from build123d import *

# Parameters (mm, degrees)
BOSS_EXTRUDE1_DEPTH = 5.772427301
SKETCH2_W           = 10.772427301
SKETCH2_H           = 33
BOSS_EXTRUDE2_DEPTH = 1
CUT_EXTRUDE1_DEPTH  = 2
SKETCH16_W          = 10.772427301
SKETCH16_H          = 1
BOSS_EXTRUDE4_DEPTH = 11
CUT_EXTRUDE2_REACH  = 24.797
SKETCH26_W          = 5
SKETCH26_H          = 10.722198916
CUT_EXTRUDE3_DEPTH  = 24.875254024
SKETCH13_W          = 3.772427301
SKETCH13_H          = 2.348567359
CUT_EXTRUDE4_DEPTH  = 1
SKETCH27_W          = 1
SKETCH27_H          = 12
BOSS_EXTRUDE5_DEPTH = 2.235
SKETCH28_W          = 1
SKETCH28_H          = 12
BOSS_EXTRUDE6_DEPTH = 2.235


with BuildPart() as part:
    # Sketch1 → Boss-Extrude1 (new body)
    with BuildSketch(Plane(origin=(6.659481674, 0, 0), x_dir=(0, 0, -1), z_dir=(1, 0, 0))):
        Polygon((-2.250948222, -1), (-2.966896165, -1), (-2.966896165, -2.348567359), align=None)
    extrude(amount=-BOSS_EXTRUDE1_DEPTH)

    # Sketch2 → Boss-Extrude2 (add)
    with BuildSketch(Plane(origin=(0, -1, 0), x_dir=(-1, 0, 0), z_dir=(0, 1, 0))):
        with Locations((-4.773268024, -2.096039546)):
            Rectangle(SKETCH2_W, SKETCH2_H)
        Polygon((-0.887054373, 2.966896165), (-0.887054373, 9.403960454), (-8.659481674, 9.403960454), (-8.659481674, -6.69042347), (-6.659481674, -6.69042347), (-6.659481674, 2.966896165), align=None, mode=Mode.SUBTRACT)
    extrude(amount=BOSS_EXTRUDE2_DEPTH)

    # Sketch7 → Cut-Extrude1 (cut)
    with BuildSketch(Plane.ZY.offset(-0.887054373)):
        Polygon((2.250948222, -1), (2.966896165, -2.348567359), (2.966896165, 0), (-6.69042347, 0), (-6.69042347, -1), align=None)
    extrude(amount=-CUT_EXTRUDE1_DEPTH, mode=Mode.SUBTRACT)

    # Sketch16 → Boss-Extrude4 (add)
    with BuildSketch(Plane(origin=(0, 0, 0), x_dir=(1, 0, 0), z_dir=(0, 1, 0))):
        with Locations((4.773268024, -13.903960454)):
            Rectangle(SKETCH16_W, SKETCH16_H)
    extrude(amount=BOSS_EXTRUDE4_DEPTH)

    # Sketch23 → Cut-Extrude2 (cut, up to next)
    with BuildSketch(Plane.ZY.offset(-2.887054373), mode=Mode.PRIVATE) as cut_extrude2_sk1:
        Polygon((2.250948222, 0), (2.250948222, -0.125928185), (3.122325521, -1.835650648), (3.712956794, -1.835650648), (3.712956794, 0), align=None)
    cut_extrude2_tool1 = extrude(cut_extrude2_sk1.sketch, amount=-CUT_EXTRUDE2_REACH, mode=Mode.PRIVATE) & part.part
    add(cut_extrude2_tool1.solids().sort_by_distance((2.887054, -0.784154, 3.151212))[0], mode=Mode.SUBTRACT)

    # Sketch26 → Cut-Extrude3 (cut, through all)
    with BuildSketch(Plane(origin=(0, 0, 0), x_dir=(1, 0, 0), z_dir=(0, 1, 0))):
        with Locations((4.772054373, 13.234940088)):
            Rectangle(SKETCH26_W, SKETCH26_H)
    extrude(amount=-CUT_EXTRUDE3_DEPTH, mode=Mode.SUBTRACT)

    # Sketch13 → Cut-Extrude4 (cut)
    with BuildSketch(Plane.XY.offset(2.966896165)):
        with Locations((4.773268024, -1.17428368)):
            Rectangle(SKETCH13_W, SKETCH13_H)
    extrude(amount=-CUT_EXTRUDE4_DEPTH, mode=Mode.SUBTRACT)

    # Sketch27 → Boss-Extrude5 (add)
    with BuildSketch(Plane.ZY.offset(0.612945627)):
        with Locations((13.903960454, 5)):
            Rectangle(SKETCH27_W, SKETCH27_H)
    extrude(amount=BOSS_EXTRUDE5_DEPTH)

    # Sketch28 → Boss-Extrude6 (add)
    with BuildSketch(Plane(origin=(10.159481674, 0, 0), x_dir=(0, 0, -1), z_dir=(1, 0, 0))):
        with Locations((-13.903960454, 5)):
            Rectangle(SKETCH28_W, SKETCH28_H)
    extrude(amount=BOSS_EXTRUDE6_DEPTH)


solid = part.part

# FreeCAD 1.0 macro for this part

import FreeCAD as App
import Part
import Sketcher

V = App.Vector
Q = App.Units.Quantity

doc = App.newDocument("Part")
body = doc.addObject("PartDesign::Body", "Body")

sketch1 = body.newObject("Sketcher::SketchObject", "Sketch")
sketch1.AttachmentSupport = (doc.getObject("YZ_Plane"), [""])
sketch1.MapMode = "FlatFace"
sketch1.AttachmentOffset = App.Placement(V(0, 0, 6.659482), App.Rotation())
sketch1.addGeometry([
    Part.LineSegment(V(-1, 2.250948, 0), V(-1, 2.966896, 0)),
    Part.LineSegment(V(-1, 2.966896, 0), V(-2.348567, 2.966896, 0)),
    Part.LineSegment(V(-2.348567, 2.966896, 0), V(-1, 2.250948, 0)),
], False)
sketch1.addConstraint([
    Sketcher.Constraint("Coincident", 0, 2, 1, 1),
    Sketcher.Constraint("Coincident", 1, 2, 2, 1),
    Sketcher.Constraint("Coincident", 2, 2, 0, 1),
    Sketcher.Constraint("Vertical", 0),
    Sketcher.Constraint("Horizontal", 1),
    Sketcher.Constraint("DistanceX", 0, 2, -1, 1, Q("1 mm")),
    Sketcher.Constraint("Distance", 2, Q("1.526832 mm")),
    Sketcher.Constraint("DistanceX", 1, 2, 1, 1, Q("1.348567 mm")),
    Sketcher.Constraint("DistanceY", -1, 1, 2, 2, Q("2.250948 mm")),
])
pad1 = body.newObject("PartDesign::Pad", "Pad")
pad1.Profile = sketch1
pad1.Length = 5.772427
pad1.Reversed = True

sketch2 = body.newObject("Sketcher::SketchObject", "Sketch001")
sketch2.AttachmentSupport = (doc.getObject("XZ_Plane"), [""])
sketch2.MapMode = "FlatFace"
sketch2.AttachmentOffset = App.Placement(V(0, 0, 1), App.Rotation())
sketch2.addGeometry([
    Part.LineSegment(V(10.159482, 14.40396, 0), V(10.159482, -18.59604, 0)),
    Part.LineSegment(V(10.159482, -18.59604, 0), V(-0.612946, -18.59604, 0)),
    Part.LineSegment(V(-0.612946, -18.59604, 0), V(-0.612946, 14.40396, 0)),
    Part.LineSegment(V(-0.612946, 14.40396, 0), V(10.159482, 14.40396, 0)),
    Part.LineSegment(V(0.887054, 9.40396, 0), V(0.887054, 2.966896, 0)),
    Part.LineSegment(V(0.887054, 2.966896, 0), V(6.659482, 2.966896, 0)),
    Part.LineSegment(V(6.659482, 2.966896, 0), V(6.659482, -6.690423, 0)),
    Part.LineSegment(V(6.659482, -6.690423, 0), V(8.659482, -6.690423, 0)),
    Part.LineSegment(V(8.659482, -6.690423, 0), V(8.659482, 9.40396, 0)),
    Part.LineSegment(V(8.659482, 9.40396, 0), V(0.887054, 9.40396, 0)),
], False)
sketch2.addConstraint([
    Sketcher.Constraint("Coincident", 0, 2, 1, 1),
    Sketcher.Constraint("Coincident", 1, 2, 2, 1),
    Sketcher.Constraint("Coincident", 2, 2, 3, 1),
    Sketcher.Constraint("Coincident", 3, 2, 0, 1),
    Sketcher.Constraint("Coincident", 4, 2, 5, 1),
    Sketcher.Constraint("Coincident", 5, 2, 6, 1),
    Sketcher.Constraint("Coincident", 6, 2, 7, 1),
    Sketcher.Constraint("Coincident", 7, 2, 8, 1),
    Sketcher.Constraint("Coincident", 8, 2, 9, 1),
    Sketcher.Constraint("Coincident", 9, 2, 4, 1),
    Sketcher.Constraint("Vertical", 0),
    Sketcher.Constraint("Horizontal", 1),
    Sketcher.Constraint("Vertical", 2),
    Sketcher.Constraint("Horizontal", 3),
    Sketcher.Constraint("Vertical", 4),
    Sketcher.Constraint("Horizontal", 5),
    Sketcher.Constraint("Vertical", 6),
    Sketcher.Constraint("Horizontal", 7),
    Sketcher.Constraint("Vertical", 8),
    Sketcher.Constraint("Horizontal", 9),
    Sketcher.Constraint("DistanceX", 7, 1, 7, 2, Q("2 mm")),
    Sketcher.Constraint("DistanceY", 0, 2, 0, 1, Q("33 mm")),
    Sketcher.Constraint("DistanceY", 8, 2, 3, 2, Q("5 mm")),
    Sketcher.Constraint("DistanceX", 2, 2, 4, 2, Q("1.5 mm")),
    Sketcher.Constraint("DistanceX", 5, 2, 3, 2, Q("3.5 mm")),
    Sketcher.Constraint("DistanceY", 6, 2, 6, 1, Q("9.65732 mm")),
    Sketcher.Constraint("DistanceX", 1, 2, 1, 1, Q("10.772427 mm")),
    Sketcher.Constraint("DistanceY", 4, 2, 4, 1, Q("6.437064 mm")),
    Sketcher.Constraint("DistanceX", -1, 1, 0, 2, Q("10.159482 mm")),
    Sketcher.Constraint("DistanceY", 0, 2, -1, 1, Q("18.59604 mm")),
])
pad2 = body.newObject("PartDesign::Pad", "Pad001")
pad2.Profile = sketch2
pad2.Length = 1
pad2.Reversed = True

sketch3 = body.newObject("Sketcher::SketchObject", "Sketch002")
sketch3.AttachmentSupport = (doc.getObject("YZ_Plane"), [""])
sketch3.MapMode = "FlatFace"
sketch3.AttachmentOffset = App.Placement(V(0, 0, 0.887054), App.Rotation())
sketch3.addGeometry([
    Part.LineSegment(V(-1, 2.250948, 0), V(-2.348567, 2.966896, 0)),
    Part.LineSegment(V(-2.348567, 2.966896, 0), V(0, 2.966896, 0)),
    Part.LineSegment(V(0, 2.966896, 0), V(0, -6.690423, 0)),
    Part.LineSegment(V(0, -6.690423, 0), V(-1, -6.690423, 0)),
    Part.LineSegment(V(-1, -6.690423, 0), V(-1, 2.250948, 0)),
], False)
sketch3.addConstraint([
    Sketcher.Constraint("Coincident", 0, 2, 1, 1),
    Sketcher.Constraint("Coincident", 1, 2, 2, 1),
    Sketcher.Constraint("Coincident", 2, 2, 3, 1),
    Sketcher.Constraint("Coincident", 3, 2, 4, 1),
    Sketcher.Constraint("Coincident", 4, 2, 0, 1),
    Sketcher.Constraint("Horizontal", 1),
    Sketcher.Constraint("Vertical", 2),
    Sketcher.Constraint("Horizontal", 3),
    Sketcher.Constraint("Vertical", 4),
    Sketcher.Constraint("PointOnObject", 1, 2, -2),
    Sketcher.Constraint("DistanceX", 3, 2, 3, 1, Q("1 mm")),
    Sketcher.Constraint("DistanceY", 2, 2, 2, 1, Q("9.65732 mm")),
    Sketcher.Constraint("DistanceY", 4, 1, 4, 2, Q("8.941372 mm")),
    Sketcher.Constraint("Distance", 0, Q("1.526832 mm")),
    Sketcher.Constraint("DistanceY", -1, 1, 4, 2, Q("2.250948 mm")),
])
pocket1 = body.newObject("PartDesign::Pocket", "Pocket")
pocket1.Profile = sketch3
pocket1.Length = 2
pocket1.Reversed = True

sketch4 = body.newObject("Sketcher::SketchObject", "Sketch003")
sketch4.AttachmentSupport = (doc.getObject("XZ_Plane"), [""])
sketch4.MapMode = "FlatFace"
sketch4.addGeometry([
    Part.LineSegment(V(-0.612946, 13.40396, 0), V(-0.612946, 14.40396, 0)),
    Part.LineSegment(V(-0.612946, 14.40396, 0), V(10.159482, 14.40396, 0)),
    Part.LineSegment(V(10.159482, 14.40396, 0), V(10.159482, 13.40396, 0)),
    Part.LineSegment(V(10.159482, 13.40396, 0), V(-0.612946, 13.40396, 0)),
], False)
sketch4.addConstraint([
    Sketcher.Constraint("Coincident", 0, 2, 1, 1),
    Sketcher.Constraint("Coincident", 1, 2, 2, 1),
    Sketcher.Constraint("Coincident", 2, 2, 3, 1),
    Sketcher.Constraint("Coincident", 3, 2, 0, 1),
    Sketcher.Constraint("Vertical", 0),
    Sketcher.Constraint("Horizontal", 1),
    Sketcher.Constraint("Vertical", 2),
    Sketcher.Constraint("Horizontal", 3),
    Sketcher.Constraint("DistanceY", 0, 1, 0, 2, Q("1 mm")),
    Sketcher.Constraint("DistanceX", 1, 1, 1, 2, Q("10.772427 mm")),
    Sketcher.Constraint("DistanceY", -1, 1, 0, 2, Q("14.40396 mm")),
    Sketcher.Constraint("DistanceX", -1, 1, 1, 2, Q("10.159482 mm")),
])
pad3 = body.newObject("PartDesign::Pad", "Pad002")
pad3.Profile = sketch4
pad3.Length = 11
pad3.Reversed = True

sketch5 = body.newObject("Sketcher::SketchObject", "Sketch004")
sketch5.AttachmentSupport = (doc.getObject("YZ_Plane"), [""])
sketch5.MapMode = "FlatFace"
sketch5.AttachmentOffset = App.Placement(V(0, 0, 2.887054), App.Rotation())
sketch5.addGeometry([
    Part.LineSegment(V(0, 2.250948, 0), V(-0.125928, 2.250948, 0)),
    Part.LineSegment(V(-0.125928, 2.250948, 0), V(-1.835651, 3.122326, 0)),
    Part.LineSegment(V(-1.835651, 3.122326, 0), V(-1.835651, 3.712957, 0)),
    Part.LineSegment(V(-1.835651, 3.712957, 0), V(0, 3.712957, 0)),
    Part.LineSegment(V(0, 3.712957, 0), V(0, 2.250948, 0)),
], False)
sketch5.addConstraint([
    Sketcher.Constraint("Coincident", 0, 2, 1, 1),
    Sketcher.Constraint("Coincident", 1, 2, 2, 1),
    Sketcher.Constraint("Coincident", 2, 2, 3, 1),
    Sketcher.Constraint("Coincident", 3, 2, 4, 1),
    Sketcher.Constraint("Coincident", 4, 2, 0, 1),
    Sketcher.Constraint("Horizontal", 0),
    Sketcher.Constraint("Vertical", 2),
    Sketcher.Constraint("Horizontal", 3),
    Sketcher.Constraint("Vertical", 4),
    Sketcher.Constraint("PointOnObject", 3, 2, -2),
    Sketcher.Constraint("DistanceX", 0, 2, 0, 1, Q("0.125928 mm")),
    Sketcher.Constraint("DistanceX", 3, 1, 3, 2, Q("1.835651 mm")),
    Sketcher.Constraint("DistanceY", 2, 1, 2, 2, Q("0.590631 mm")),
    Sketcher.Constraint("DistanceY", 4, 2, 4, 1, Q("1.462009 mm")),
    Sketcher.Constraint("DistanceY", -1, 1, 0, 2, Q("2.250948 mm")),
])
pocket2 = body.newObject("PartDesign::Pocket", "Pocket001")
pocket2.Profile = sketch5
pocket2.Type = "UpToFirst"
pocket2.Reversed = True

sketch6 = body.newObject("Sketcher::SketchObject", "Sketch005")
sketch6.AttachmentSupport = (doc.getObject("XZ_Plane"), [""])
sketch6.MapMode = "FlatFace"
sketch6.addGeometry([
    Part.LineSegment(V(2.272054, -18.59604, 0), V(2.272054, -7.873841, 0)),
    Part.LineSegment(V(2.272054, -7.873841, 0), V(7.272054, -7.873841, 0)),
    Part.LineSegment(V(7.272054, -7.873841, 0), V(7.272054, -18.59604, 0)),
    Part.LineSegment(V(7.272054, -18.59604, 0), V(2.272054, -18.59604, 0)),
], False)
sketch6.addConstraint([
    Sketcher.Constraint("Coincident", 0, 2, 1, 1),
    Sketcher.Constraint("Coincident", 1, 2, 2, 1),
    Sketcher.Constraint("Coincident", 2, 2, 3, 1),
    Sketcher.Constraint("Coincident", 3, 2, 0, 1),
    Sketcher.Constraint("Vertical", 0),
    Sketcher.Constraint("Horizontal", 1),
    Sketcher.Constraint("Vertical", 2),
    Sketcher.Constraint("Horizontal", 3),
    Sketcher.Constraint("DistanceX", 1, 1, 1, 2, Q("5 mm")),
    Sketcher.Constraint("DistanceY", 0, 1, 0, 2, Q("10.722199 mm")),
    Sketcher.Constraint("DistanceY", 0, 2, -1, 1, Q("7.873841 mm")),
    Sketcher.Constraint("DistanceX", -1, 1, 0, 2, Q("2.272054 mm")),
])
pocket3 = body.newObject("PartDesign::Pocket", "Pocket002")
pocket3.Profile = sketch6
pocket3.Type = "ThroughAll"
pocket3.Reversed = True

sketch7 = body.newObject("Sketcher::SketchObject", "Sketch006")
sketch7.AttachmentSupport = (doc.getObject("XY_Plane"), [""])
sketch7.MapMode = "FlatFace"
sketch7.AttachmentOffset = App.Placement(V(0, 0, 2.966896), App.Rotation())
sketch7.addGeometry([
    Part.LineSegment(V(2.887054, 0, 0), V(2.887054, -2.348567, 0)),
    Part.LineSegment(V(2.887054, -2.348567, 0), V(6.659482, -2.348567, 0)),
    Part.LineSegment(V(6.659482, -2.348567, 0), V(6.659482, 0, 0)),
    Part.LineSegment(V(6.659482, 0, 0), V(2.887054, 0, 0)),
], False)
sketch7.addConstraint([
    Sketcher.Constraint("Coincident", 0, 2, 1, 1),
    Sketcher.Constraint("Coincident", 1, 2, 2, 1),
    Sketcher.Constraint("Coincident", 2, 2, 3, 1),
    Sketcher.Constraint("Coincident", 3, 2, 0, 1),
    Sketcher.Constraint("Vertical", 0),
    Sketcher.Constraint("Horizontal", 1),
    Sketcher.Constraint("Vertical", 2),
    Sketcher.Constraint("Horizontal", 3),
    Sketcher.Constraint("PointOnObject", 2, 2, -1),
    Sketcher.Constraint("DistanceX", 1, 1, 1, 2, Q("3.772427 mm")),
    Sketcher.Constraint("DistanceY", 0, 2, 0, 1, Q("2.348567 mm")),
    Sketcher.Constraint("DistanceX", -1, 1, 1, 2, Q("6.659482 mm")),
])
pocket4 = body.newObject("PartDesign::Pocket", "Pocket003")
pocket4.Profile = sketch7
pocket4.Length = 1

sketch8 = body.newObject("Sketcher::SketchObject", "Sketch007")
sketch8.AttachmentSupport = (doc.getObject("YZ_Plane"), [""])
sketch8.MapMode = "FlatFace"
sketch8.AttachmentOffset = App.Placement(V(0, 0, -0.612946), App.Rotation())
sketch8.addGeometry([
    Part.LineSegment(V(11, 13.40396, 0), V(-1, 13.40396, 0)),
    Part.LineSegment(V(-1, 13.40396, 0), V(-1, 14.40396, 0)),
    Part.LineSegment(V(-1, 14.40396, 0), V(11, 14.40396, 0)),
    Part.LineSegment(V(11, 14.40396, 0), V(11, 13.40396, 0)),
], False)
sketch8.addConstraint([
    Sketcher.Constraint("Coincident", 0, 2, 1, 1),
    Sketcher.Constraint("Coincident", 1, 2, 2, 1),
    Sketcher.Constraint("Coincident", 2, 2, 3, 1),
    Sketcher.Constraint("Coincident", 3, 2, 0, 1),
    Sketcher.Constraint("Horizontal", 0),
    Sketcher.Constraint("Vertical", 1),
    Sketcher.Constraint("Horizontal", 2),
    Sketcher.Constraint("Vertical", 3),
    Sketcher.Constraint("DistanceX", 0, 2, 0, 1, Q("12 mm")),
    Sketcher.Constraint("DistanceY", 1, 1, 1, 2, Q("1 mm")),
    Sketcher.Constraint("DistanceX", 0, 2, -1, 1, Q("1 mm")),
    Sketcher.Constraint("DistanceY", -1, 1, 0, 2, Q("13.40396 mm")),
])
pad4 = body.newObject("PartDesign::Pad", "Pad003")
pad4.Profile = sketch8
pad4.Length = 2.235
pad4.Reversed = True

sketch9 = body.newObject("Sketcher::SketchObject", "Sketch008")
sketch9.AttachmentSupport = (doc.getObject("YZ_Plane"), [""])
sketch9.MapMode = "FlatFace"
sketch9.AttachmentOffset = App.Placement(V(0, 0, 10.159482), App.Rotation())
sketch9.addGeometry([
    Part.LineSegment(V(11, 14.40396, 0), V(-1, 14.40396, 0)),
    Part.LineSegment(V(-1, 14.40396, 0), V(-1, 13.40396, 0)),
    Part.LineSegment(V(-1, 13.40396, 0), V(11, 13.40396, 0)),
    Part.LineSegment(V(11, 13.40396, 0), V(11, 14.40396, 0)),
], False)
sketch9.addConstraint([
    Sketcher.Constraint("Coincident", 0, 2, 1, 1),
    Sketcher.Constraint("Coincident", 1, 2, 2, 1),
    Sketcher.Constraint("Coincident", 2, 2, 3, 1),
    Sketcher.Constraint("Coincident", 3, 2, 0, 1),
    Sketcher.Constraint("Horizontal", 0),
    Sketcher.Constraint("Vertical", 1),
    Sketcher.Constraint("Horizontal", 2),
    Sketcher.Constraint("Vertical", 3),
    Sketcher.Constraint("DistanceX", 0, 2, 0, 1, Q("12 mm")),
    Sketcher.Constraint("DistanceY", 1, 2, 1, 1, Q("1 mm")),
    Sketcher.Constraint("DistanceX", 0, 2, -1, 1, Q("1 mm")),
    Sketcher.Constraint("DistanceY", -1, 1, 0, 2, Q("14.40396 mm")),
])
pad5 = body.newObject("PartDesign::Pad", "Pad004")
pad5.Profile = sketch9
pad5.Length = 2.235

doc.recompute()
